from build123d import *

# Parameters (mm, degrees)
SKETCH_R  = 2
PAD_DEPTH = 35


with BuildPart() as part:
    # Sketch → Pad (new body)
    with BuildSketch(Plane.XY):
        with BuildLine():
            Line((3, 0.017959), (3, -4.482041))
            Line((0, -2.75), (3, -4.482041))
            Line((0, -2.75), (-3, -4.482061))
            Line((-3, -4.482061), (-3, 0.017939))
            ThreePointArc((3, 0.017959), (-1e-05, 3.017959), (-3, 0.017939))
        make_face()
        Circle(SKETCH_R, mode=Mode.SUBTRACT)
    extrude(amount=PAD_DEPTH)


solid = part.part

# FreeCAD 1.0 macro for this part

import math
import FreeCAD as App
import Part
import Sketcher

V = App.Vector

doc = App.newDocument("Part")
params = doc.addObject("Spreadsheet::Sheet", "Params")
for row, (alias, value) in enumerate([
    ("sketch1_diameter", "4 mm"),
    ("sketch1_radius", "3 mm"),
    ("sketch1_height", "4.5 mm"),
    ("pad1_length", "35 mm"),
], start=1):
    params.set(f"A{row}", alias)
    params.set(f"B{row}", "=" + value)
    params.setAlias(f"B{row}", alias)

body = doc.addObject("PartDesign::Body", "Body")

# Sketch on XY plane
sketch1 = doc.addObject("Sketcher::SketchObject", "Sketch")
body.addObject(sketch1)
sketch1.AttachmentSupport = (doc.XY_Plane, [""])
sketch1.MapMode = "FlatFace"
sketch1.addGeometry([
    Part.LineSegment(V(3, -4.5, 0), V(3, 0, 0)),  # 0
    Part.ArcOfCircle(Part.Circle(V(0, 0, 0), V(0, 0, 1), 3), math.radians(0), math.radians(180)),  # 1
    Part.LineSegment(V(-3, 0, 0), V(-3, -4.5, 0)),  # 2
    Part.LineSegment(V(-3, -4.5, 0), V(0, -2.8, 0)),  # 3
    Part.LineSegment(V(0, -2.8, 0), V(3, -4.5, 0)),  # 4
    Part.Circle(V(0, 0, 0), V(0, 0, 1), 2),  # 5
], False)
sketch1.addConstraint([
    Sketcher.Constraint("Tangent", 0, 2, 1, 1),
    Sketcher.Constraint("Coincident", 1, 2, 2, 1),
    Sketcher.Constraint("Coincident", 2, 2, 3, 1),
    Sketcher.Constraint("Coincident", 3, 2, 4, 1),
    Sketcher.Constraint("Coincident", 4, 2, 0, 1),
    Sketcher.Constraint("Vertical", 0),
    Sketcher.Constraint("Vertical", 2),
    Sketcher.Constraint("Coincident", 5, 3, -1, 1),
    Sketcher.Constraint("PointOnObject", 1, 3, -2),
    Sketcher.Constraint("PointOnObject", 3, 2, -2),
    Sketcher.Constraint("Equal", 0, 2),
    Sketcher.Constraint("Diameter", 5, 4.0),
    Sketcher.Constraint("Radius", 1, 3.0),
    Sketcher.Constraint("DistanceY", 0, 1, 0, 2, 4.5),
    Sketcher.Constraint("DistanceY", 3, 2, -1, 1, 2.75),
    Sketcher.Constraint("DistanceY", -1, 1, 1, 3, 0.017959),
    Sketcher.Constraint("DistanceY", -1, 1, 1, 2, 0.017939),
])
sketch1.setExpression("Constraints[11]", "Params.sketch1_diameter")
sketch1.setExpression("Constraints[12]", "Params.sketch1_radius")
sketch1.setExpression("Constraints[13]", "Params.sketch1_height")
pad1 = doc.addObject("PartDesign::Pad", "Pad")
body.addObject(pad1)
pad1.Profile = sketch1
pad1.setExpression("Length", "Params.pad1_length")

doc.recompute()
